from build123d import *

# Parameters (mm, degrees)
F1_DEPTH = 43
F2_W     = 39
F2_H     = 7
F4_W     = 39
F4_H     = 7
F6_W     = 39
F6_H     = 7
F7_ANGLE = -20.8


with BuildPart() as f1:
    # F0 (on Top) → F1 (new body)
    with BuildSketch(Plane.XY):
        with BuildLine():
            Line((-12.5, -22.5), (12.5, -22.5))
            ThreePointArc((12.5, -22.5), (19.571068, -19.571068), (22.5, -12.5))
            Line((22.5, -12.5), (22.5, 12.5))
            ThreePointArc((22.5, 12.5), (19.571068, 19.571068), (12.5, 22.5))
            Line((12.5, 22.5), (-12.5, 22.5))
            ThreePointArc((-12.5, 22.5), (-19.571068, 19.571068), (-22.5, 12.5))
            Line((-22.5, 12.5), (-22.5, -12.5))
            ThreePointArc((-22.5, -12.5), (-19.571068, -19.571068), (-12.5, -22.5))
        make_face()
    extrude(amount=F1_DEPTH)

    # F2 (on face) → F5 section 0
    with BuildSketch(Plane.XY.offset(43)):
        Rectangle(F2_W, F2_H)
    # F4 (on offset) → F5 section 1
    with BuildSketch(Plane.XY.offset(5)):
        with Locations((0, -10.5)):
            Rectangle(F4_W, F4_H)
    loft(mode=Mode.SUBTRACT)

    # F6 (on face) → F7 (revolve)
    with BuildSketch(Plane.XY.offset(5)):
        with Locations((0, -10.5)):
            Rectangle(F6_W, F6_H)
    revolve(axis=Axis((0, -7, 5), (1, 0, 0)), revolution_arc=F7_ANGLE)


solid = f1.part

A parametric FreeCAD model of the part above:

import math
import FreeCAD as App
import Part
import Sketcher
Q = App.Units.Quantity


def add_polygon(sketch, points):
    """Adds a closed chain of lines whose ends are joined by coincident constraints."""
    first, n = sketch.GeometryCount, len(points)
    for a, b in zip(points, points[1:] + points[:1]):
        sketch.addGeometry(Part.LineSegment(App.Vector(*a, 0), App.Vector(*b, 0)), False)
    for i in range(n):
        sketch.addConstraint(Sketcher.Constraint("Coincident", first + i, 2, first + (i + 1) % n, 1))

doc = App.newDocument("Part")
params = doc.addObject("Spreadsheet::Sheet", "Params")
for row, (alias, value) in enumerate([
    ("sketch1_radius", "9.999999 mm"),
    ("sketch1_width", "25 mm"),
    ("pad1_length", "43 mm"),
    ("sketch2_width", "39 mm"),
    ("sketch2_height", "7 mm"),
    ("sketch3_width", "39 mm"),
    ("sketch3_height", "7 mm"),
    ("sketch4_width", "39 mm"),
    ("sketch4_height", "7 mm"),
    ("revolution_angle", "20.8 deg"),
], start=1):
    params.set(f"A{row}", alias)
    params.set(f"B{row}", "=" + value)
    params.setAlias(f"B{row}", alias)

body = doc.addObject("PartDesign::Body", "Body")

# Sketch on XY plane
sketch1 = body.newObject("Sketcher::SketchObject", "Sketch")
sketch1.AttachmentSupport = (doc.getObject("XY_Plane"), [""])
sketch1.MapMode = "FlatFace"
sketch1.addGeometry(Part.LineSegment(App.Vector(-12.5, -22.5, 0), App.Vector(12.5, -22.5, 0)), False)
sketch1.addGeometry(Part.ArcOfCircle(Part.Circle(App.Vector(12.500001, -12.500001, 0), App.Vector(0, 0, 1), 9.999999), math.radians(-90.000004), math.radians(0.000004)), False)
sketch1.addGeometry(Part.LineSegment(App.Vector(22.5, -12.5, 0), App.Vector(22.5, 12.5, 0)), False)
sketch1.addGeometry(Part.ArcOfCircle(Part.Circle(App.Vector(12.500001, 12.500001, 0), App.Vector(0, 0, 1), 9.999999), math.radians(-0.000004), math.radians(90.000004)), False)
sketch1.addGeometry(Part.LineSegment(App.Vector(12.5, 22.5, 0), App.Vector(-12.5, 22.5, 0)), False)
sketch1.addGeometry(Part.ArcOfCircle(Part.Circle(App.Vector(-12.500001, 12.500001, 0), App.Vector(0, 0, 1), 9.999999), math.radians(89.999996), math.radians(180.000004)), False)
sketch1.addGeometry(Part.LineSegment(App.Vector(-22.5, 12.5, 0), App.Vector(-22.5, -12.5, 0)), False)
sketch1.addGeometry(Part.ArcOfCircle(Part.Circle(App.Vector(-12.500001, -12.500001, 0), App.Vector(0, 0, 1), 9.999999), math.radians(179.999996), math.radians(270.000004)), False)
sketch1.addConstraint(Sketcher.Constraint("Tangent", 0, 2, 1, 1))
sketch1.addConstraint(Sketcher.Constraint("Tangent", 1, 2, 2, 1))
sketch1.addConstraint(Sketcher.Constraint("Tangent", 2, 2, 3, 1))
sketch1.addConstraint(Sketcher.Constraint("Tangent", 3, 2, 4, 1))
sketch1.addConstraint(Sketcher.Constraint("Tangent", 4, 2, 5, 1))
sketch1.addConstraint(Sketcher.Constraint("Tangent", 5, 2, 6, 1))
sketch1.addConstraint(Sketcher.Constraint("Tangent", 6, 2, 7, 1))
sketch1.addConstraint(Sketcher.Constraint("Tangent", 7, 2, 0, 1))
sketch1.addConstraint(Sketcher.Constraint("Horizontal", 0))
sketch1.addConstraint(Sketcher.Constraint("Vertical", 2))
sketch1.addConstraint(Sketcher.Constraint("Horizontal", 4))
sketch1.addConstraint(Sketcher.Constraint("Vertical", 6))
sketch1.addConstraint(Sketcher.Constraint("Equal", 1, 3))
sketch1.addConstraint(Sketcher.Constraint("Equal", 3, 5))
sketch1.addConstraint(Sketcher.Constraint("Equal", 5, 7))
sketch1.addConstraint(Sketcher.Constraint("Symmetric", 1, 3, 5, 3, -1, 1))
sketch1.addConstraint(Sketcher.Constraint("Equal", 4, 2))
sketch1.addConstraint(Sketcher.Constraint("Radius", 1, Q("9.999999 mm")))
sketch1.addConstraint(Sketcher.Constraint("DistanceX", 0, 1, 0, 2, Q("25 mm")))
sketch1.setExpression("Constraints[17]", "Params.sketch1_radius")
sketch1.setExpression("Constraints[18]", "Params.sketch1_width")
pad1 = body.newObject("PartDesign::Pad", "Pad")
pad1.Profile = sketch1
pad1.setExpression("Length", "Params.pad1_length")

# Sketch on XY plane
sketch2 = body.newObject("Sketcher::SketchObject", "Sketch001")
sketch2.AttachmentSupport = (doc.getObject("XY_Plane"), [""])
sketch2.MapMode = "FlatFace"
sketch2.AttachmentOffset = App.Placement(App.Vector(0, 0, 43), App.Rotation())
add_polygon(sketch2, [(-19.5, 3.5), (-19.5, -3.5), (19.5, -3.5), (19.5, 3.5)])  # lines 0-3
sketch2.addConstraint(Sketcher.Constraint("Vertical", 0))
sketch2.addConstraint(Sketcher.Constraint("Horizontal", 1))
sketch2.addConstraint(Sketcher.Constraint("Vertical", 2))
sketch2.addConstraint(Sketcher.Constraint("Horizontal", 3))
sketch2.addConstraint(Sketcher.Constraint("Symmetric", 0, 2, 2, 2, -1, 1))
sketch2.addConstraint(Sketcher.Constraint("DistanceX", 1, 1, 1, 2, Q("39 mm")))
sketch2.addConstraint(Sketcher.Constraint("DistanceY", 0, 2, 0, 1, Q("7 mm")))
sketch2.setExpression("Constraints[9]", "Params.sketch2_width")
sketch2.setExpression("Constraints[10]", "Params.sketch2_height")

# Sketch on XY plane
sketch3 = body.newObject("Sketcher::SketchObject", "Sketch002")
sketch3.AttachmentSupport = (doc.getObject("XY_Plane"), [""])
sketch3.MapMode = "FlatFace"
sketch3.AttachmentOffset = App.Placement(App.Vector(0, 0, 5), App.Rotation())
add_polygon(sketch3, [(-19.5, -7), (-19.5, -14), (19.5, -14), (19.5, -7)])  # lines 0-3
sketch3.addConstraint(Sketcher.Constraint("Vertical", 0))
sketch3.addConstraint(Sketcher.Constraint("Horizontal", 1))
sketch3.addConstraint(Sketcher.Constraint("Vertical", 2))
sketch3.addConstraint(Sketcher.Constraint("Horizontal", 3))
sketch3.addConstraint(Sketcher.Constraint("DistanceX", 1, 1, 1, 2, Q("39 mm")))
sketch3.addConstraint(Sketcher.Constraint("DistanceY", 0, 2, 0, 1, Q("7 mm")))
sketch3.addConstraint(Sketcher.Constraint("DistanceY", 0, 2, -1, 1, Q("14 mm")))
sketch3.addConstraint(Sketcher.Constraint("DistanceX", 0, 2, -1, 1, Q("19.5 mm")))
sketch3.setExpression("Constraints[8]", "Params.sketch3_width")
sketch3.setExpression("Constraints[9]", "Params.sketch3_height")

subtractiveloft = body.newObject("PartDesign::SubtractiveLoft", "SubtractiveLoft")
subtractiveloft.Profile = sketch2
subtractiveloft.Sections = [sketch3]

# Sketch on XY plane
sketch4 = body.newObject("Sketcher::SketchObject", "Sketch003")
sketch4.AttachmentSupport = (doc.getObject("XY_Plane"), [""])
sketch4.MapMode = "FlatFace"
sketch4.AttachmentOffset = App.Placement(App.Vector(0, 0, 5), App.Rotation())
add_polygon(sketch4, [(-19.5, -7), (-19.5, -14), (19.5, -14), (19.5, -7)])  # lines 0-3
sketch4.addGeometry(Part.LineSegment(App.Vector(-19.5, -7, 0), App.Vector(19.5, -7, 0)), True)  # axis
sketch4.addConstraint(Sketcher.Constraint("Vertical", 0))
sketch4.addConstraint(Sketcher.Constraint("Horizontal", 1))
sketch4.addConstraint(Sketcher.Constraint("Vertical", 2))
sketch4.addConstraint(Sketcher.Constraint("Horizontal", 3))
sketch4.addConstraint(Sketcher.Constraint("Horizontal", 4))
sketch4.addConstraint(Sketcher.Constraint("Coincident", 4, 1, 3, 2))
sketch4.addConstraint(Sketcher.Constraint("Vertical", 1, 2, 4, 2))
sketch4.addConstraint(Sketcher.Constraint("DistanceX", 1, 1, 1, 2, Q("39 mm")))
sketch4.addConstraint(Sketcher.Constraint("DistanceY", 0, 2, 0, 1, Q("7 mm")))
sketch4.addConstraint(Sketcher.Constraint("DistanceY", 0, 2, -1, 1, Q("14 mm")))
sketch4.addConstraint(Sketcher.Constraint("DistanceX", 0, 2, -1, 1, Q("19.5 mm")))
sketch4.setExpression("Constraints[11]", "Params.sketch4_width")
sketch4.setExpression("Constraints[12]", "Params.sketch4_height")
revolution = body.newObject("PartDesign::Revolution", "Revolution")
revolution.Profile = sketch4
revolution.ReferenceAxis = (sketch4, ["Axis0"])
revolution.setExpression("Angle", "Params.revolution_angle")
revolution.Reversed = True

doc.recompute()
